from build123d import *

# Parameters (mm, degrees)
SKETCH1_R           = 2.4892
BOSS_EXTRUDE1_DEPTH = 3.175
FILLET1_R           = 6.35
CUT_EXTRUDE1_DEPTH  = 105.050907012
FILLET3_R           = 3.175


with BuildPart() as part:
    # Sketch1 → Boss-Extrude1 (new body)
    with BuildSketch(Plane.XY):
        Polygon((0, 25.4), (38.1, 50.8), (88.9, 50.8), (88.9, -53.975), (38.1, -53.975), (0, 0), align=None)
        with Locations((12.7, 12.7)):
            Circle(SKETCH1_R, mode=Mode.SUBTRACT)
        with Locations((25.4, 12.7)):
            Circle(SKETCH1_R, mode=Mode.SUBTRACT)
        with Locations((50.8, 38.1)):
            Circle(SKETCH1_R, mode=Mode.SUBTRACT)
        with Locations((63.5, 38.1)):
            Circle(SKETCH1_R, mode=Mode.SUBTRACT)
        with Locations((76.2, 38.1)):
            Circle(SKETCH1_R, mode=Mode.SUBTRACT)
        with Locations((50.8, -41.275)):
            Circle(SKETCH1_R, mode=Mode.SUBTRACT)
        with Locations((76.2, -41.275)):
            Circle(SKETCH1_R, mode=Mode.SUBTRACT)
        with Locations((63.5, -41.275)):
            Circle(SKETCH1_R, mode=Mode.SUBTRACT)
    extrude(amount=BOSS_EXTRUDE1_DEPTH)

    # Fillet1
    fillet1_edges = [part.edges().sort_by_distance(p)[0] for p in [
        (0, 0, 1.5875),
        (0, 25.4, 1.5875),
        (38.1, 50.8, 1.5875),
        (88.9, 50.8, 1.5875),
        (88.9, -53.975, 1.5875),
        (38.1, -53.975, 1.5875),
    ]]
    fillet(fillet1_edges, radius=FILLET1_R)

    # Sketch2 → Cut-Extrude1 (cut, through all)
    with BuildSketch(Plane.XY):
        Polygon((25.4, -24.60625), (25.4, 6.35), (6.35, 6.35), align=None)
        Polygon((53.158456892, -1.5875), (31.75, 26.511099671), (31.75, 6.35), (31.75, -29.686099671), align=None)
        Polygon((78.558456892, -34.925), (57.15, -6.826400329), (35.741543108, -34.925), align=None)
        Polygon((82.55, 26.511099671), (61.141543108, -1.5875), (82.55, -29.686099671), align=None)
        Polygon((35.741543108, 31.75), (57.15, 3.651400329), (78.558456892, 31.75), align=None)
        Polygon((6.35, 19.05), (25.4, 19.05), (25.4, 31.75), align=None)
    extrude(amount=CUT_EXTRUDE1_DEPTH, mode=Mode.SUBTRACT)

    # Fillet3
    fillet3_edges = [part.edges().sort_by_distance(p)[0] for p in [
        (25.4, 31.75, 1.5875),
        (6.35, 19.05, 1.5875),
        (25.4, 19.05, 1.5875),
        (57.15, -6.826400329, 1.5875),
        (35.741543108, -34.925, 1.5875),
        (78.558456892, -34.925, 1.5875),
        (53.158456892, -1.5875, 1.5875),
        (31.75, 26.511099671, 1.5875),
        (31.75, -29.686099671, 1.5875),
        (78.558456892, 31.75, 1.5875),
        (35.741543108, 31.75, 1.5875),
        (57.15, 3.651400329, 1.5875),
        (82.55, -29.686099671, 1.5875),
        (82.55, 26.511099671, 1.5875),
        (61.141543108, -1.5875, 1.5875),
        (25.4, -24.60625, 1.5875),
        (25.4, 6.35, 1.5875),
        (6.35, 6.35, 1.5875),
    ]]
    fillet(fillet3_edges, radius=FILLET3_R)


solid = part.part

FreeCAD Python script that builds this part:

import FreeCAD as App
import Part
import Sketcher
from FreeCAD import Vector
Q = App.Units.Quantity


def edges_at(feature, points):
    """Names of the edges that pass closest to the given points."""
    edges = feature.Shape.Edges
    near = lambda p: min(range(len(edges)), key=lambda i: edges[i].distToShape(Part.Vertex(*p))[0])
    return sorted({f"Edge{near(p) + 1}" for p in points})


def add_polygon(sketch, points):
    """Adds a closed chain of lines whose ends are joined by coincident constraints."""
    first, n = sketch.GeometryCount, len(points)
    for a, b in zip(points, points[1:] + points[:1]):
        sketch.addGeometry(Part.LineSegment(App.Vector(*a, 0), App.Vector(*b, 0)), False)
    for i in range(n):
        sketch.addConstraint(Sketcher.Constraint("Coincident", first + i, 2, first + (i + 1) % n, 1))

doc = App.newDocument("Part")
body = doc.addObject("PartDesign::Body", "Body")

# Sketch on XY plane
sketch1 = doc.addObject("Sketcher::SketchObject", "Sketch")
body.addObject(sketch1)
sketch1.AttachmentSupport = (doc.XY_Plane, [""])
sketch1.MapMode = "FlatFace"
add_polygon(sketch1, [(38.1, 50.8), (0, 25.4), (0, 0), (38.1, -54), (88.9, -54), (88.9, 50.8)])  # lines 0-5
sketch1.addGeometry(Part.Circle(Vector(76.2, -41.3, 0), Vector(0, 0, 1), 2.5), False)  # 6
sketch1.addGeometry(Part.Circle(Vector(63.5, -41.3, 0), Vector(0, 0, 1), 2.5), False)  # 7
sketch1.addGeometry(Part.Circle(Vector(50.8, -41.3, 0), Vector(0, 0, 1), 2.5), False)  # 8
sketch1.addGeometry(Part.Circle(Vector(76.2, 38.1, 0), Vector(0, 0, 1), 2.5), False)  # 9
sketch1.addGeometry(Part.Circle(Vector(63.5, 38.1, 0), Vector(0, 0, 1), 2.5), False)  # 10
sketch1.addGeometry(Part.Circle(Vector(50.8, 38.1, 0), Vector(0, 0, 1), 2.5), False)  # 11
sketch1.addGeometry(Part.Circle(Vector(25.4, 12.7, 0), Vector(0, 0, 1), 2.5), False)  # 12
sketch1.addGeometry(Part.Circle(Vector(12.7, 12.7, 0), Vector(0, 0, 1), 2.5), False)  # 13
sketch1.addConstraint([
    Sketcher.Constraint("Vertical", 1),
    Sketcher.Constraint("Horizontal", 3),
    Sketcher.Constraint("Vertical", 4),
    Sketcher.Constraint("Horizontal", 5),
    Sketcher.Constraint("Coincident", 1, 2, -1, 1),
    Sketcher.Constraint("Equal", 6, 7),
    Sketcher.Constraint("Equal", 7, 8),
    Sketcher.Constraint("Equal", 8, 9),
    Sketcher.Constraint("Equal", 9, 10),
    Sketcher.Constraint("Equal", 10, 11),
    Sketcher.Constraint("Equal", 11, 12),
    Sketcher.Constraint("Equal", 12, 13),
    Sketcher.Constraint("Horizontal", 6, 3, 7, 3),
    Sketcher.Constraint("Horizontal", 7, 3, 8, 3),
    Sketcher.Constraint("Horizontal", 9, 3, 10, 3),
    Sketcher.Constraint("Horizontal", 10, 3, 11, 3),
    Sketcher.Constraint("Horizontal", 12, 3, 13, 3),
    Sketcher.Constraint("Vertical", 6, 3, 9, 3),
    Sketcher.Constraint("Vertical", 7, 3, 10, 3),
    Sketcher.Constraint("Vertical", 8, 3, 11, 3),
    Sketcher.Constraint("Vertical", 2, 2, 5, 2),
    Sketcher.Constraint("DistanceX", 3, 1, 3, 2, Q("2 in")),
    Sketcher.Constraint("DistanceY", 1, 2, 1, 1, Q("1 in")),
    Sketcher.Constraint("Diameter", 6, Q("0.196 in")),
    Sketcher.Constraint("DistanceX", -1, 1, 6, 3, Q("3 in")),
    Sketcher.Constraint("DistanceX", -1, 1, 8, 3, Q("2 in")),
    Sketcher.Constraint("DistanceX", -1, 1, 12, 3, Q("1 in")),
    Sketcher.Constraint("DistanceY", -1, 1, 4, 2, Q("2 in")),
    Sketcher.Constraint("DistanceY", 12, 3, 11, 3, Q("1 in")),
    Sketcher.Constraint("DistanceX", 13, 3, 10, 3, Q("2 in")),
    Sketcher.Constraint("DistanceX", 2, 2, 7, 3, Q("1 in")),
    Sketcher.Constraint("DistanceX", -1, 1, 7, 3, Q("2.5 in")),
    Sketcher.Constraint("DistanceY", -1, 1, 9, 3, Q("1.5 in")),
    Sketcher.Constraint("DistanceY", 2, 2, 8, 3, Q("0.5 in")),
    Sketcher.Constraint("DistanceY", 4, 1, 4, 2, Q("4.125 in")),
])
pad1 = doc.addObject("PartDesign::Pad", "Pad")
body.addObject(pad1)
pad1.Profile = sketch1
pad1.Length = Q("0.125 in")
doc.recompute()

fillet = doc.addObject("PartDesign::Fillet", "Fillet")
body.addObject(fillet)
fillet.Base = (pad1, edges_at(pad1, [
    (0, 0, 1.587),
    (0, 25.4, 1.587),
    (38.1, 50.8, 1.587),
    (88.9, 50.8, 1.587),
    (88.9, -53.975, 1.587),
    (38.1, -53.975, 1.587),
]))
fillet.Radius = Q("0.25 in")

# Sketch on XY plane
sketch2 = doc.addObject("Sketcher::SketchObject", "Sketch001")
body.addObject(sketch2)
sketch2.AttachmentSupport = (doc.XY_Plane, [""])
sketch2.MapMode = "FlatFace"
add_polygon(sketch2, [(25, -25), (25, 6), (6, 6)])  # lines 0-2
add_polygon(sketch2, [(53, -2), (32, 27), (32, -30)])  # lines 3-5
add_polygon(sketch2, [(79, -35), (57, -7), (36, -35)])  # lines 6-8
add_polygon(sketch2, [(83, 27), (61, -2), (83, -30)])  # lines 9-11
add_polygon(sketch2, [(36, 32), (57, 4), (79, 32)])  # lines 12-14
add_polygon(sketch2, [(6, 19), (25, 19), (25, 32)])  # lines 15-17
sketch2.addConstraint([
    Sketcher.Constraint("Vertical", 0),
    Sketcher.Constraint("Horizontal", 1),
    Sketcher.Constraint("Vertical", 4),
    Sketcher.Constraint("Horizontal", 8),
    Sketcher.Constraint("Vertical", 11),
    Sketcher.Constraint("Horizontal", 14),
    Sketcher.Constraint("Horizontal", 15),
    Sketcher.Constraint("Vertical", 16),
    Sketcher.Constraint("Parallel", 3, 6),
    Sketcher.Constraint("Parallel", 5, 7),
    Sketcher.Constraint("Parallel", 7, 9),
    Sketcher.Constraint("Parallel", 6, 10),
    Sketcher.Constraint("Parallel", 10, 12),
    Sketcher.Constraint("Parallel", 9, 13),
    Sketcher.Constraint("Horizontal", 5, 2, 9, 2),
    Sketcher.Constraint("Horizontal", 4, 2, 10, 2),
    Sketcher.Constraint("Horizontal", 3, 2, 11, 2),
    Sketcher.Constraint("Horizontal", 14, 2, 16, 2),
    Sketcher.Constraint("Vertical", 6, 2, 12, 2),
    Sketcher.Constraint("Vertical", 8, 2, 13, 2),
    Sketcher.Constraint("Vertical", 2, 2, 15, 2),
    Sketcher.Constraint("Vertical", 1, 2, 17, 2),
    Sketcher.Constraint("Equal", 5, 6),
    Sketcher.Constraint("DistanceY", 16, 1, 16, 2, Q("0.5 in")),
    Sketcher.Constraint("DistanceX", -1, 1, 0, 2, Q("1 in")),
    Sketcher.Constraint("DistanceX", 1, 2, 3, 2, Q("1 in")),
    Sketcher.Constraint("DistanceX", 4, 2, 6, 2, Q("1 in")),
    Sketcher.Constraint("DistanceX", 6, 2, 10, 2, Q("1 in")),
    Sketcher.Constraint("DistanceY", 0, 2, 14, 2, Q("1 in")),
    Sketcher.Constraint("DistanceX", 1, 2, 1, 1, Q("0.75 in")),
    Sketcher.Constraint("DistanceY", 0, 1, 0, 2, Q("1.21875 in")),
    Sketcher.Constraint("DistanceY", -1, 1, 0, 2, Q("0.25 in")),
    Sketcher.Constraint("DistanceY", 5, 2, -1, 1, Q("0.0625 in")),
    Sketcher.Constraint("DistanceY", 7, 2, -1, 1, Q("1.375 in")),
    Sketcher.Constraint("DistanceY", 4, 2, 4, 1, 56.197199),
    Sketcher.Constraint("DistanceX", 8, 1, 8, 2, 42.816914),
])
pocket1 = doc.addObject("PartDesign::Pocket", "Pocket")
body.addObject(pocket1)
pocket1.Profile = sketch2
pocket1.Type = "ThroughAll"
pocket1.Reversed = True
doc.recompute()

fillet2 = doc.addObject("PartDesign::Fillet", "Fillet001")
body.addObject(fillet2)
fillet2.Base = (pocket1, edges_at(pocket1, [
    (25.4, 31.75, 1.587),
    (6.35, 19.05, 1.587),
    (25.4, 19.05, 1.587),
    (57.15, -6.826, 1.587),
    (35.742, -34.925, 1.587),
    (78.558, -34.925, 1.587),
    (53.158, -1.587, 1.587),
    (31.75, 26.511, 1.587),
    (31.75, -29.686, 1.587),
    (78.558, 31.75, 1.587),
    (35.742, 31.75, 1.587),
    (57.15, 3.651, 1.587),
    (82.55, -29.686, 1.587),
    (82.55, 26.511, 1.587),
    (61.142, -1.587, 1.587),
    (25.4, -24.606, 1.587),
    (25.4, 6.35, 1.587),
    (6.35, 6.35, 1.587),
]))
fillet2.Radius = Q("0.125 in")

doc.recompute()
